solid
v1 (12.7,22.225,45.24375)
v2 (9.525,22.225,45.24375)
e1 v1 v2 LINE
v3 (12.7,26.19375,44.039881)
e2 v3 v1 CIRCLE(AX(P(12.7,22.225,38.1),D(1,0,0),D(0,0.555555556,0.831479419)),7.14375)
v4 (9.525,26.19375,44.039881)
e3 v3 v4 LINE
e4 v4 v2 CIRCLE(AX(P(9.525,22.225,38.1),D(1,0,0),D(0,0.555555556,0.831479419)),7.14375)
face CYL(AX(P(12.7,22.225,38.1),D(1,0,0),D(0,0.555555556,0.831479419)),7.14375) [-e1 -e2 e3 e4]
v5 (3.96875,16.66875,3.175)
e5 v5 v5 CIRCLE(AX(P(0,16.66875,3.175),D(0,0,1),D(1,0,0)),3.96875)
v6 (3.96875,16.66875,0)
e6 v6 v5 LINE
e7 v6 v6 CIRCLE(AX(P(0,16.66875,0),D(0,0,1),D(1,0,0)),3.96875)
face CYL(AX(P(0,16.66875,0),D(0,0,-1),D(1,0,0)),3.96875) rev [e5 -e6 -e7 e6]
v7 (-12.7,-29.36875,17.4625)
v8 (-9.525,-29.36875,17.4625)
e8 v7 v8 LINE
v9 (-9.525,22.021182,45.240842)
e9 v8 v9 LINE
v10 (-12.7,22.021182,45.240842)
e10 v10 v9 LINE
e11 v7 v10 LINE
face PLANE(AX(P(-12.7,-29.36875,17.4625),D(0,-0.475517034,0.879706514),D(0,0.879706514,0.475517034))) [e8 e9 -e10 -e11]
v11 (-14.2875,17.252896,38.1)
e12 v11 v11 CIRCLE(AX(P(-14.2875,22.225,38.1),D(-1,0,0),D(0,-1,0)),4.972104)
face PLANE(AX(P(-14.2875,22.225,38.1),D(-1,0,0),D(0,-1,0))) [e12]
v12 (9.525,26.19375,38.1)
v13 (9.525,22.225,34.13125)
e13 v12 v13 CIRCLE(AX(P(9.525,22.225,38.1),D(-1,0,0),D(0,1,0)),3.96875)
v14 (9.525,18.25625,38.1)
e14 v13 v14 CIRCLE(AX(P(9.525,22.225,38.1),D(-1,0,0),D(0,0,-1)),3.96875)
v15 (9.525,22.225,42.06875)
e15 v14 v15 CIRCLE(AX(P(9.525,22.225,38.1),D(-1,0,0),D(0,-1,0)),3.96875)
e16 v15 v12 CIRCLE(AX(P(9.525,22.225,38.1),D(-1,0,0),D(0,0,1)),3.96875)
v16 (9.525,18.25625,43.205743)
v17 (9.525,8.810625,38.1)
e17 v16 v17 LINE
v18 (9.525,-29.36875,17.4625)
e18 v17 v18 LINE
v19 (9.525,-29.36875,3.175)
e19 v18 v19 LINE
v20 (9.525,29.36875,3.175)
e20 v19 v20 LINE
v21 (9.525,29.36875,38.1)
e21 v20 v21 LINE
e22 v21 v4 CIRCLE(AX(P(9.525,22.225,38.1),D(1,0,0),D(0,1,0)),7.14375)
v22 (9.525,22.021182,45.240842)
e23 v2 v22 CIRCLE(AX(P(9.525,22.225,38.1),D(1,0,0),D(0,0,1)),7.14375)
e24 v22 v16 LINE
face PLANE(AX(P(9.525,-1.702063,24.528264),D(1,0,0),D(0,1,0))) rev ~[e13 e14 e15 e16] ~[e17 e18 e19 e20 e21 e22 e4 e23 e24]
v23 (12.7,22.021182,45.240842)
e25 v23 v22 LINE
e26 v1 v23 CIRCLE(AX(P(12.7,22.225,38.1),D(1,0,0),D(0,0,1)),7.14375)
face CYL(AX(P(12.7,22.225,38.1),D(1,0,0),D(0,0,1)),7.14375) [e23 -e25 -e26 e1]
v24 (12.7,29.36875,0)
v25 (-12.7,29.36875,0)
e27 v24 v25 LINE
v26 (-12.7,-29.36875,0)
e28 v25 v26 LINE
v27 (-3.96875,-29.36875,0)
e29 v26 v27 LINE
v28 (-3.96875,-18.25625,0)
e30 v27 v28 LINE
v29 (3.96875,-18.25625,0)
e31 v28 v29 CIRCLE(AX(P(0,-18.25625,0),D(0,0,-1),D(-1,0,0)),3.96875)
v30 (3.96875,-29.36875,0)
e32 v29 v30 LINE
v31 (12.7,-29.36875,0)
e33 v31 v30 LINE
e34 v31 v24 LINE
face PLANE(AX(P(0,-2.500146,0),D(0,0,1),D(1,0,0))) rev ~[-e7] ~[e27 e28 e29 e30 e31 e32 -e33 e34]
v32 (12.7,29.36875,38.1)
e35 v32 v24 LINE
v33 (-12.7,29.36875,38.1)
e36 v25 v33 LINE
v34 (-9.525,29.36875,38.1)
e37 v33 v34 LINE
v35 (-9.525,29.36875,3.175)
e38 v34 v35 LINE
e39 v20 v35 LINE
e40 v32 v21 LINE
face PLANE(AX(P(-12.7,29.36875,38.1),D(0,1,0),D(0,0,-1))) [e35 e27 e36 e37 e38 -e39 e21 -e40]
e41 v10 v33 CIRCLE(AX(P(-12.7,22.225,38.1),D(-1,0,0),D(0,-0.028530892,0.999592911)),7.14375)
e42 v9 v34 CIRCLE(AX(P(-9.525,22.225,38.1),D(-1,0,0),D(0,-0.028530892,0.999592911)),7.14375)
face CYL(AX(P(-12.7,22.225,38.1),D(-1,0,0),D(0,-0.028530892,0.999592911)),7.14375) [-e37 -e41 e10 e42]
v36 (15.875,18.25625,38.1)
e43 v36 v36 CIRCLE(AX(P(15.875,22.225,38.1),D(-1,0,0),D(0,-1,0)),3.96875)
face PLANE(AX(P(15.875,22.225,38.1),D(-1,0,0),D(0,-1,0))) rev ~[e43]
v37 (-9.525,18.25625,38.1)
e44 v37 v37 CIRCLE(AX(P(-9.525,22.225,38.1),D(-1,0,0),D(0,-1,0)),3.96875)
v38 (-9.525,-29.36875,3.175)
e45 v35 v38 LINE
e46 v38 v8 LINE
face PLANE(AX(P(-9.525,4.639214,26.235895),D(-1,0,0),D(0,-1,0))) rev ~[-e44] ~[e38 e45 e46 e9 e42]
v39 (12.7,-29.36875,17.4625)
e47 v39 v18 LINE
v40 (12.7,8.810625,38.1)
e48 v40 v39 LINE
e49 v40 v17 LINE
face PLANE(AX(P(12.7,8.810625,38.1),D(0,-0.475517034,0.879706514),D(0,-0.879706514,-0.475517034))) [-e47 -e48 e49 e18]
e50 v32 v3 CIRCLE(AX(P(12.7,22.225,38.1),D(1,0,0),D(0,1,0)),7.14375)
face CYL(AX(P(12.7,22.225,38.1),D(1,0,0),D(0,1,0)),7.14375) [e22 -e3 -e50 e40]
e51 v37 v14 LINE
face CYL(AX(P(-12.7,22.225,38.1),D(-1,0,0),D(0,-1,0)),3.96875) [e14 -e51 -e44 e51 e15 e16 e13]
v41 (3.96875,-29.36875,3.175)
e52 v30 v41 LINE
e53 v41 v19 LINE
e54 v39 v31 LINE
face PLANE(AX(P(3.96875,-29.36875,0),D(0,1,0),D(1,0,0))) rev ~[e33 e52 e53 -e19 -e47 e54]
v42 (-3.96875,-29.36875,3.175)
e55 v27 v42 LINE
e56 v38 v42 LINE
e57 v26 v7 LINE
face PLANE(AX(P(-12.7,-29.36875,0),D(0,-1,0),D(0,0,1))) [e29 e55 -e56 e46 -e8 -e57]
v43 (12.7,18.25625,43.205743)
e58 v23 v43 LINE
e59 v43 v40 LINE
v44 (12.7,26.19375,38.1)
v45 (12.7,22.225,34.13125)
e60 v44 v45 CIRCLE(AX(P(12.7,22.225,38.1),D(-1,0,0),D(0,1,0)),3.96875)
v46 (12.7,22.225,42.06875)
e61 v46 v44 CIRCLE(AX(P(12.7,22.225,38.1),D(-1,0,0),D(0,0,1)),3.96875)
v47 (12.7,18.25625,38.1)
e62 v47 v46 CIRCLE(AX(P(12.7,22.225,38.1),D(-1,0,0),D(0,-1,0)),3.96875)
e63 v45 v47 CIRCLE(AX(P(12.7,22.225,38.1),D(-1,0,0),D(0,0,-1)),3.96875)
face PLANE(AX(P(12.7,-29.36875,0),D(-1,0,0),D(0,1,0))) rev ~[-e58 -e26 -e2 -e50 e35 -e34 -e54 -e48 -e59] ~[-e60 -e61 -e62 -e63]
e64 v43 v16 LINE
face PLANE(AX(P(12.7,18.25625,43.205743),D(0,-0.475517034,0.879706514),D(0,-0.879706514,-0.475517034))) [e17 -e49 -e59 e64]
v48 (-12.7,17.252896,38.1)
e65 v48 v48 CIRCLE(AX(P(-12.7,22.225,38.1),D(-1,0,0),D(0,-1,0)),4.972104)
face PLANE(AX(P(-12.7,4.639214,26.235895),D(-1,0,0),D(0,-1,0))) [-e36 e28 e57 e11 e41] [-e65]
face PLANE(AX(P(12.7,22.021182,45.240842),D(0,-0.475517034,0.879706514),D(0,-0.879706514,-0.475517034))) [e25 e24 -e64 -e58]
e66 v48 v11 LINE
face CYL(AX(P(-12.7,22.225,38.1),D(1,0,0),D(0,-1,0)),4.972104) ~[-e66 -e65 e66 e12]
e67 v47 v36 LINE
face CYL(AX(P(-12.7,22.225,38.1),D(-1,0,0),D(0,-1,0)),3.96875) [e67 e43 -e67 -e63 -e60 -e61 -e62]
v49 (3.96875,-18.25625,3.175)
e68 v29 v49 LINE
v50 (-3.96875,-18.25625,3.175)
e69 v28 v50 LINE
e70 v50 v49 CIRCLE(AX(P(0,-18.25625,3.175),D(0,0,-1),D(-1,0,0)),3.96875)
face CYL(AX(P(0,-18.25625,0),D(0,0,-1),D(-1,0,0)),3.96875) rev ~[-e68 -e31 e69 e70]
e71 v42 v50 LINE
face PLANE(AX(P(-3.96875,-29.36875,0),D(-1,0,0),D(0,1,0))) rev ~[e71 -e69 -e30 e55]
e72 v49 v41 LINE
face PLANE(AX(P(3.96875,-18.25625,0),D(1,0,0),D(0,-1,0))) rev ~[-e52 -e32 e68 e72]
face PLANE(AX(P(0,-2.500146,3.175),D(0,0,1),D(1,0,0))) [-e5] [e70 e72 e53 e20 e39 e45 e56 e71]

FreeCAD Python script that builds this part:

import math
import FreeCAD as App
import Part
import Sketcher
from FreeCAD import Vector
Q = App.Units.Quantity

doc = App.newDocument("Part")
body = doc.addObject("PartDesign::Body", "Body")

# Sketch on XY plane
sketch1 = body.newObject("Sketcher::SketchObject", "Sketch")
sketch1.AttachmentSupport = (doc.getObject("XY_Plane"), [""])
sketch1.MapMode = "FlatFace"
sketch1.addGeometry(Part.LineSegment(Vector(12.7, 29.36875, 0), Vector(-12.7, 29.36875, 0)), False)
sketch1.addGeometry(Part.LineSegment(Vector(-12.7, 29.36875, 0), Vector(-12.7, -29.36875, 0)), False)
sketch1.addGeometry(Part.LineSegment(Vector(-12.7, -29.36875, 0), Vector(-3.96875, -29.36875, 0)), False)
sketch1.addGeometry(Part.LineSegment(Vector(-3.96875, -29.36875, 0), Vector(-3.96875, -18.25625, 0)), False)
sketch1.addGeometry(Part.ArcOfCircle(Part.Circle(Vector(0, -18.25625, 0), Vector(0, 0, 1), 3.96875), math.radians(0), math.radians(180)), False)
sketch1.addGeometry(Part.LineSegment(Vector(3.96875, -18.25625, 0), Vector(3.96875, -29.36875, 0)), False)
sketch1.addGeometry(Part.LineSegment(Vector(3.96875, -29.36875, 0), Vector(12.7, -29.36875, 0)), False)
sketch1.addGeometry(Part.LineSegment(Vector(12.7, -29.36875, 0), Vector(12.7, 29.36875, 0)), False)
sketch1.addGeometry(Part.Circle(Vector(0, 16.66875, 0), Vector(0, 0, 1), 3.96875), False)
sketch1.addConstraint(Sketcher.Constraint("Coincident", 0, 2, 1, 1))
sketch1.addConstraint(Sketcher.Constraint("Coincident", 1, 2, 2, 1))
sketch1.addConstraint(Sketcher.Constraint("Coincident", 2, 2, 3, 1))
sketch1.addConstraint(Sketcher.Constraint("Tangent", 3, 2, 4, 2))
sketch1.addConstraint(Sketcher.Constraint("Tangent", 4, 1, 5, 1))
sketch1.addConstraint(Sketcher.Constraint("Coincident", 5, 2, 6, 1))
sketch1.addConstraint(Sketcher.Constraint("Coincident", 6, 2, 7, 1))
sketch1.addConstraint(Sketcher.Constraint("Coincident", 7, 2, 0, 1))
sketch1.addConstraint(Sketcher.Constraint("Horizontal", 0))
sketch1.addConstraint(Sketcher.Constraint("Vertical", 1))
sketch1.addConstraint(Sketcher.Constraint("Horizontal", 2))
sketch1.addConstraint(Sketcher.Constraint("Vertical", 3))
sketch1.addConstraint(Sketcher.Constraint("Vertical", 5))
sketch1.addConstraint(Sketcher.Constraint("Horizontal", 6))
sketch1.addConstraint(Sketcher.Constraint("Vertical", 7))
sketch1.addConstraint(Sketcher.Constraint("Equal", 4, 8))
sketch1.addConstraint(Sketcher.Constraint("Symmetric", 0, 2, 6, 2, -1, 1))
sketch1.addConstraint(Sketcher.Constraint("Symmetric", 2, 2, 5, 2, -2))
sketch1.addConstraint(Sketcher.Constraint("PointOnObject", 8, 3, -2))
sketch1.addConstraint(Sketcher.Constraint("DistanceX", 0, 2, 0, 1, Q("1 in")))
sketch1.addConstraint(Sketcher.Constraint("Diameter", 8, Q("0.3125 in")))
sketch1.addConstraint(Sketcher.Constraint("DistanceY", 8, 3, 0, 2, Q("0.5 in")))
sketch1.addConstraint(Sketcher.Constraint("DistanceY", 1, 2, 1, 1, Q("2.3125 in")))
sketch1.addConstraint(Sketcher.Constraint("DistanceY", 3, 1, 3, 2, Q("0.4375 in")))
pad1 = body.newObject("PartDesign::Pad", "Pad")
pad1.Profile = sketch1
pad1.Length = Q("0.125 in")

# Sketch on YZ plane
sketch2 = body.newObject("Sketcher::SketchObject", "Sketch001")
sketch2.AttachmentSupport = (doc.getObject("YZ_Plane"), [""])
sketch2.MapMode = "FlatFace"
sketch2.AttachmentOffset = App.Placement(Vector(0, 0, -0.5 * 25.4), App.Rotation())
sketch2.addGeometry(Part.LineSegment(Vector(29.36875, 38.1, 0), Vector(29.36875, 0, 0)), False)
sketch2.addGeometry(Part.LineSegment(Vector(29.36875, 0, 0), Vector(-29.36875, 0, 0)), False)
sketch2.addGeometry(Part.LineSegment(Vector(-29.36875, 0, 0), Vector(-29.36875, 17.4625, 0)), False)
sketch2.addGeometry(Part.LineSegment(Vector(-29.36875, 17.4625, 0), Vector(22.021182, 45.240842, 0)), False)
sketch2.addGeometry(Part.ArcOfCircle(Part.Circle(Vector(22.225, 38.1, 0), Vector(0, 0, 1), 7.14375), math.radians(0), math.radians(91.634922)), False)
sketch2.addGeometry(Part.Circle(Vector(22.225, 38.1, 0), Vector(0, 0, 1), 3.96875), False)
sketch2.addConstraint(Sketcher.Constraint("Coincident", 0, 2, 1, 1))
sketch2.addConstraint(Sketcher.Constraint("Coincident", 1, 2, 2, 1))
sketch2.addConstraint(Sketcher.Constraint("Coincident", 2, 2, 3, 1))
sketch2.addConstraint(Sketcher.Constraint("Coincident", 3, 2, 4, 2))
sketch2.addConstraint(Sketcher.Constraint("Tangent", 4, 1, 0, 1))
sketch2.addConstraint(Sketcher.Constraint("Vertical", 0))
sketch2.addConstraint(Sketcher.Constraint("Horizontal", 1))
sketch2.addConstraint(Sketcher.Constraint("Vertical", 2))
sketch2.addConstraint(Sketcher.Constraint("Coincident", 5, 3, 4, 3))
sketch2.addConstraint(Sketcher.Constraint("Symmetric", 0, 2, 1, 2, -1, 1))
sketch2.addConstraint(Sketcher.Constraint("Diameter", 5, Q("0.3125 in")))
sketch2.addConstraint(Sketcher.Constraint("DistanceY", 0, 2, 0, 1, Q("1.5 in")))
sketch2.addConstraint(Sketcher.Constraint("Radius", 4, Q("0.28125 in")))
sketch2.addConstraint(Sketcher.Constraint("DistanceX", 1, 2, 1, 1, Q("2.3125 in")))
sketch2.addConstraint(Sketcher.Constraint("DistanceY", 2, 1, 2, 2, Q("0.6875 in")))
sketch2.addConstraint(Sketcher.Constraint("DistanceY", -1, 1, 3, 2, Q("45.240842 mm")))
pad2 = body.newObject("PartDesign::Pad", "Pad001")
pad2.Profile = sketch2
pad2.Length = Q("0.125 in")

# Sketch on YZ plane
sketch3 = body.newObject("Sketcher::SketchObject", "Sketch002")
sketch3.AttachmentSupport = (doc.getObject("YZ_Plane"), [""])
sketch3.MapMode = "FlatFace"
sketch3.AttachmentOffset = App.Placement(Vector(0, 0, 0.5 * 25.4), App.Rotation())
sketch3.addGeometry(Part.LineSegment(Vector(-29.36875, 0, 0), Vector(29.36875, 0, 0)), False)
sketch3.addGeometry(Part.LineSegment(Vector(29.36875, 0, 0), Vector(29.36875, 38.1, 0)), False)
sketch3.addGeometry(Part.ArcOfCircle(Part.Circle(Vector(22.225, 38.1, 0), Vector(0, 0, 1), 7.14375), math.radians(0), math.radians(56.251011)), False)
sketch3.addGeometry(Part.ArcOfCircle(Part.Circle(Vector(22.225, 38.1, 0), Vector(0, 0, 1), 7.14375), math.radians(56.251011), math.radians(90)), False)
sketch3.addGeometry(Part.ArcOfCircle(Part.Circle(Vector(22.225, 38.1, 0), Vector(0, 0, 1), 7.14375), math.radians(90), math.radians(91.634922)), False)
sketch3.addGeometry(Part.LineSegment(Vector(22.021182, 45.240842, 0), Vector(18.25625, 43.205743, 0)), False)
sketch3.addGeometry(Part.LineSegment(Vector(18.25625, 43.205743, 0), Vector(8.810625, 38.1, 0)), False)
sketch3.addGeometry(Part.LineSegment(Vector(8.810625, 38.1, 0), Vector(-29.36875, 17.4625, 0)), False)
sketch3.addGeometry(Part.LineSegment(Vector(-29.36875, 17.4625, 0), Vector(-29.36875, 0, 0)), False)
sketch3.addGeometry(Part.ArcOfCircle(Part.Circle(Vector(22.225, 38.1, 0), Vector(0, 0, 1), 3.96875), math.radians(90), math.radians(180)), False)
sketch3.addGeometry(Part.ArcOfCircle(Part.Circle(Vector(22.225, 38.1, 0), Vector(0, 0, 1), 3.96875), math.radians(0), math.radians(90)), False)
sketch3.addGeometry(Part.ArcOfCircle(Part.Circle(Vector(22.225, 38.1, 0), Vector(0, 0, 1), 3.96875), math.radians(-90), math.radians(0)), False)
sketch3.addGeometry(Part.ArcOfCircle(Part.Circle(Vector(22.225, 38.1, 0), Vector(0, 0, 1), 3.96875), math.radians(180), math.radians(270)), False)
sketch3.addConstraint(Sketcher.Constraint("Coincident", 0, 2, 1, 1))
sketch3.addConstraint(Sketcher.Constraint("Tangent", 1, 2, 2, 1))
sketch3.addConstraint(Sketcher.Constraint("Tangent", 2, 2, 3, 1))
sketch3.addConstraint(Sketcher.Constraint("Tangent", 3, 2, 4, 1))
sketch3.addConstraint(Sketcher.Constraint("Coincident", 4, 2, 5, 1))
sketch3.addConstraint(Sketcher.Constraint("Coincident", 5, 2, 6, 1))
sketch3.addConstraint(Sketcher.Constraint("Coincident", 6, 2, 7, 1))
sketch3.addConstraint(Sketcher.Constraint("Coincident", 7, 2, 8, 1))
sketch3.addConstraint(Sketcher.Constraint("Coincident", 8, 2, 0, 1))
sketch3.addConstraint(Sketcher.Constraint("Tangent", 9, 1, 10, 2))
sketch3.addConstraint(Sketcher.Constraint("Tangent", 10, 1, 11, 2))
sketch3.addConstraint(Sketcher.Constraint("Tangent", 11, 1, 12, 2))
sketch3.addConstraint(Sketcher.Constraint("Tangent", 12, 1, 9, 2))
sketch3.addConstraint(Sketcher.Constraint("Horizontal", 0))
sketch3.addConstraint(Sketcher.Constraint("Vertical", 1))
sketch3.addConstraint(Sketcher.Constraint("Vertical", 8))
sketch3.addConstraint(Sketcher.Constraint("Coincident", 4, 3, 2, 3))
sketch3.addConstraint(Sketcher.Constraint("Coincident", 9, 3, 2, 3))
sketch3.addConstraint(Sketcher.Constraint("Equal", 9, 10))
sketch3.addConstraint(Sketcher.Constraint("Symmetric", 0, 2, 8, 2, -1, 1))
sketch3.addConstraint(Sketcher.Constraint("Parallel", 5, 6))
sketch3.addConstraint(Sketcher.Constraint("Parallel", 6, 7))
sketch3.addConstraint(Sketcher.Constraint("Horizontal", 1, 2, 6, 2))
sketch3.addConstraint(Sketcher.Constraint("Horizontal", 6, 2, 10, 1))
sketch3.addConstraint(Sketcher.Constraint("Horizontal", 10, 1, 12, 1))
sketch3.addConstraint(Sketcher.Constraint("Vertical", 12, 3, 3, 2))
sketch3.addConstraint(Sketcher.Constraint("Vertical", 3, 2, 9, 1))
sketch3.addConstraint(Sketcher.Constraint("Vertical", 2, 2, 10, 1))
sketch3.addConstraint(Sketcher.Constraint("Vertical", 9, 1, 11, 1))
sketch3.addConstraint(Sketcher.Constraint("Vertical", 5, 2, 12, 1))
sketch3.addConstraint(Sketcher.Constraint("DistanceY", 1, 1, 1, 2, Q("1.5 in")))
sketch3.addConstraint(Sketcher.Constraint("Radius", 2, Q("0.28125 in")))
sketch3.addConstraint(Sketcher.Constraint("Radius", 9, Q("0.15625 in")))
sketch3.addConstraint(Sketcher.Constraint("DistanceX", 0, 1, 0, 2, Q("2.3125 in")))
sketch3.addConstraint(Sketcher.Constraint("DistanceY", 8, 2, 8, 1, Q("0.6875 in")))
sketch3.addConstraint(Sketcher.Constraint("DistanceY", 5, 2, 4, 2, Q("2.035099 mm")))
pad3 = body.newObject("PartDesign::Pad", "Pad002")
pad3.Profile = sketch3
pad3.Length = Q("0.125 in")
pad3.Reversed = True

# Sketch on YZ plane
sketch4 = body.newObject("Sketcher::SketchObject", "Sketch003")
sketch4.AttachmentSupport = (doc.getObject("YZ_Plane"), [""])
sketch4.MapMode = "FlatFace"
sketch4.AttachmentOffset = App.Placement(Vector(0, 0, -0.5 * 25.4), App.Rotation())
sketch4.addGeometry(Part.Circle(Vector(22.225, 38.1, 0), Vector(0, 0, 1), 3.96875), False)
sketch4.addConstraint(Sketcher.Constraint("Diameter", 0, Q("0.3125 in")))
sketch4.addConstraint(Sketcher.Constraint("DistanceY", -1, 1, 0, 3, Q("1.5 in")))
sketch4.addConstraint(Sketcher.Constraint("DistanceX", -1, 1, 0, 3, Q("0.875 in")))
pad4 = body.newObject("PartDesign::Pad", "Pad003")
pad4.Profile = sketch4
pad4.Length = Q("1.125 in")

# Sketch on YZ plane
sketch5 = body.newObject("Sketcher::SketchObject", "Sketch004")
sketch5.AttachmentSupport = (doc.getObject("YZ_Plane"), [""])
sketch5.MapMode = "FlatFace"
sketch5.AttachmentOffset = App.Placement(Vector(0, 0, -0.5 * 25.4), App.Rotation())
sketch5.addGeometry(Part.Circle(Vector(22.225, 38.1, 0), Vector(0, 0, 1), 4.972104), False)
sketch5.addConstraint(Sketcher.Constraint("DistanceY", -1, 1, 0, 3, Q("1.5 in")))
sketch5.addConstraint(Sketcher.Constraint("DistanceX", -1, 1, 0, 3, Q("0.875 in")))
sketch5.addConstraint(Sketcher.Constraint("Diameter", 0, Q("9.944208 mm")))
pad5 = body.newObject("PartDesign::Pad", "Pad004")
pad5.Profile = sketch5
pad5.Length = Q("0.0625 in")
pad5.Reversed = True

doc.recompute()
